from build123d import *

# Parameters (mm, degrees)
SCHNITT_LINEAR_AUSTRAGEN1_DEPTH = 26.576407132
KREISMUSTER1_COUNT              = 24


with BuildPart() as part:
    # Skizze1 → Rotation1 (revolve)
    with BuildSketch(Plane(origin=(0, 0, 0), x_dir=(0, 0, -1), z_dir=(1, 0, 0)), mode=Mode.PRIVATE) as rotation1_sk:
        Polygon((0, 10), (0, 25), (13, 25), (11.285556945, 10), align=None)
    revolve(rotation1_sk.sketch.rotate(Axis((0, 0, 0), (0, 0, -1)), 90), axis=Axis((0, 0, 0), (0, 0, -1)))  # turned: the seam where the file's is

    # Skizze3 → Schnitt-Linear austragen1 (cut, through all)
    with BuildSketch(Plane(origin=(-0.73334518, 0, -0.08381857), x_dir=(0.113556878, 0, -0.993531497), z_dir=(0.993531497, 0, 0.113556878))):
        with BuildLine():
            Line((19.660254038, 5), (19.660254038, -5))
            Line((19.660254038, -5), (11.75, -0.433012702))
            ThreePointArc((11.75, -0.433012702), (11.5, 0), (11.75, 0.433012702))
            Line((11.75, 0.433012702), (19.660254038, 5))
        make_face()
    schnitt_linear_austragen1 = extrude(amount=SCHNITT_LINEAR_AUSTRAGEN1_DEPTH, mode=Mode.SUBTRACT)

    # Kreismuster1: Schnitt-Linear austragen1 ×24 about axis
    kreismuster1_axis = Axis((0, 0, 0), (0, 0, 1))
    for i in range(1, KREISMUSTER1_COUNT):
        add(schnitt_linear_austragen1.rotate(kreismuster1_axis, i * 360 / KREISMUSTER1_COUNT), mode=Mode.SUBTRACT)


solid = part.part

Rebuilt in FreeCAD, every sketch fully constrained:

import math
import FreeCAD as App
import Part
import Sketcher

V = App.Vector
Q = App.Units.Quantity


def add_polygon(sketch, points):
    """Adds a closed chain of lines whose ends are joined by coincident constraints."""
    first, n = sketch.GeometryCount, len(points)
    for a, b in zip(points, points[1:] + points[:1]):
        sketch.addGeometry(Part.LineSegment(App.Vector(*a, 0), App.Vector(*b, 0)), False)
    for i in range(n):
        sketch.addConstraint(Sketcher.Constraint("Coincident", first + i, 2, first + (i + 1) % n, 1))

doc = App.newDocument("Part")
body = doc.addObject("PartDesign::Body", "Body")

# Sketch on YZ plane
sketch1 = body.newObject("Sketcher::SketchObject", "Sketch")
sketch1.AttachmentSupport = (doc.getObject("YZ_Plane"), [""])
sketch1.MapMode = "FlatFace"
add_polygon(sketch1, [(25, 0), (10, 0), (10, -11), (25, -13)])  # lines 0-3
sketch1.addConstraint(Sketcher.Constraint("Horizontal", 0))
sketch1.addConstraint(Sketcher.Constraint("Vertical", 1))
sketch1.addConstraint(Sketcher.Constraint("Vertical", 3))
sketch1.addConstraint(Sketcher.Constraint("PointOnObject", 0, 2, -1))
sketch1.addConstraint(Sketcher.Constraint("DistanceX", 0, 2, 0, 1, 15.0))
sketch1.addConstraint(Sketcher.Constraint("DistanceY", 3, 1, 3, 2, 13.0))
sketch1.addConstraint(Sketcher.Constraint("DistanceX", -1, 1, 0, 2, 10.0))
sketch1.addConstraint(Sketcher.Constraint("Distance", 2, 15.097659))
revolution = body.newObject("PartDesign::Revolution", "Revolution")
revolution.Profile = sketch1
revolution.ReferenceAxis = (sketch1, ["V_Axis"])
revolution.Angle = 360

# Sketch on an angled plane
sketch2 = body.newObject("Sketcher::SketchObject", "Sketch001")
sketch2.Placement = App.Placement(V(-0.733345, 0, -0.083819), App.Rotation(V(0.113556878, 0, -0.993531497), V(0, 1, 0), V(0.993531497, 0, 0.113556878), "ZXY"))
sketch2.addGeometry(Part.LineSegment(V(19.7, -5, 0), V(19.7, 5, 0)), False)
sketch2.addGeometry(Part.LineSegment(V(19.7, 5, 0), V(11.8, 0.4, 0)), False)
sketch2.addGeometry(Part.ArcOfCircle(Part.Circle(V(12, 0, 0), V(0, 0, 1), 0.5), math.radians(120), math.radians(240)), False)
sketch2.addGeometry(Part.LineSegment(V(11.8, -0.4, 0), V(19.7, -5, 0)), False)
sketch2.addConstraint(Sketcher.Constraint("Coincident", 0, 2, 1, 1))
sketch2.addConstraint(Sketcher.Constraint("Tangent", 1, 2, 2, 1))
sketch2.addConstraint(Sketcher.Constraint("Tangent", 2, 2, 3, 1))
sketch2.addConstraint(Sketcher.Constraint("Coincident", 3, 2, 0, 1))
sketch2.addConstraint(Sketcher.Constraint("Vertical", 0))
sketch2.addConstraint(Sketcher.Constraint("Symmetric", 1, 2, 2, 2, -1))
sketch2.addConstraint(Sketcher.Constraint("Radius", 2, 0.5))
sketch2.addConstraint(Sketcher.Constraint("DistanceY", 0, 1, 0, 2, 10.0))
sketch2.addConstraint(Sketcher.Constraint("Angle", 1, Q("-150 deg")))
sketch2.addConstraint(Sketcher.Constraint("DistanceX", -1, 1, 2, 3, 12.0))
pocket1 = body.newObject("PartDesign::Pocket", "Pocket")
pocket1.Profile = sketch2
pocket1.Type = "ThroughAll"
pocket1.Reversed = True
doc.recompute()

polarpattern = body.newObject("PartDesign::PolarPattern", "PolarPattern")
polarpattern.Originals = [pocket1]
polarpattern.Axis = (doc.getObject("Z_Axis"), [""])
polarpattern.Angle = 360
polarpattern.Occurrences = 24
body.Tip = polarpattern

doc.recompute()
